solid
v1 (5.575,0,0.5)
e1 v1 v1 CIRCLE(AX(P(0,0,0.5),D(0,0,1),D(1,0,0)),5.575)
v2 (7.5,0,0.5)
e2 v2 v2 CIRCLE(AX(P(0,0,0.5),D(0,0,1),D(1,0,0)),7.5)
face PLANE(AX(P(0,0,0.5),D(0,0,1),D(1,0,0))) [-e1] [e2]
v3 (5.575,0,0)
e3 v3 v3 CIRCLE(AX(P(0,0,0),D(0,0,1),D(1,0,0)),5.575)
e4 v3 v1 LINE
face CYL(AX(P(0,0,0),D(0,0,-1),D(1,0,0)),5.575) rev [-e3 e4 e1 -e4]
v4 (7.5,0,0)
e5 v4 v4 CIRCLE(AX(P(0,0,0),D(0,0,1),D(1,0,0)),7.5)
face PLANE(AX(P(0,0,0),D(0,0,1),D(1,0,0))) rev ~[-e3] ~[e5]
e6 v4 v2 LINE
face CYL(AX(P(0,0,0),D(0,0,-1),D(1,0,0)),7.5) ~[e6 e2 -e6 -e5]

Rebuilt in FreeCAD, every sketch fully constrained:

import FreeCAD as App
import Part
import Sketcher

V = App.Vector
Q = App.Units.Quantity

doc = App.newDocument("Part")
body = doc.addObject("PartDesign::Body", "Body")

# Sketch on XY plane
sketch1 = body.newObject("Sketcher::SketchObject", "Sketch")
sketch1.AttachmentSupport = (doc.getObject("XY_Plane"), [""])
sketch1.MapMode = "FlatFace"
sketch1.addGeometry([
    Part.Circle(V(0, 0, 0), V(0, 0, 1), 8),
    Part.Circle(V(0, 0, 0), V(0, 0, 1), 6),
], False)
sketch1.addConstraint([
    Sketcher.Constraint("Coincident", 0, 3, -1, 1),
    Sketcher.Constraint("Coincident", 1, 3, -1, 1),
    Sketcher.Constraint("Diameter", 0, Q("15 mm")),
    Sketcher.Constraint("Diameter", 1, Q("11.15 mm")),
])
pad1 = body.newObject("PartDesign::Pad", "Pad")
pad1.Profile = sketch1
pad1.Length = 0.5

doc.recompute()
